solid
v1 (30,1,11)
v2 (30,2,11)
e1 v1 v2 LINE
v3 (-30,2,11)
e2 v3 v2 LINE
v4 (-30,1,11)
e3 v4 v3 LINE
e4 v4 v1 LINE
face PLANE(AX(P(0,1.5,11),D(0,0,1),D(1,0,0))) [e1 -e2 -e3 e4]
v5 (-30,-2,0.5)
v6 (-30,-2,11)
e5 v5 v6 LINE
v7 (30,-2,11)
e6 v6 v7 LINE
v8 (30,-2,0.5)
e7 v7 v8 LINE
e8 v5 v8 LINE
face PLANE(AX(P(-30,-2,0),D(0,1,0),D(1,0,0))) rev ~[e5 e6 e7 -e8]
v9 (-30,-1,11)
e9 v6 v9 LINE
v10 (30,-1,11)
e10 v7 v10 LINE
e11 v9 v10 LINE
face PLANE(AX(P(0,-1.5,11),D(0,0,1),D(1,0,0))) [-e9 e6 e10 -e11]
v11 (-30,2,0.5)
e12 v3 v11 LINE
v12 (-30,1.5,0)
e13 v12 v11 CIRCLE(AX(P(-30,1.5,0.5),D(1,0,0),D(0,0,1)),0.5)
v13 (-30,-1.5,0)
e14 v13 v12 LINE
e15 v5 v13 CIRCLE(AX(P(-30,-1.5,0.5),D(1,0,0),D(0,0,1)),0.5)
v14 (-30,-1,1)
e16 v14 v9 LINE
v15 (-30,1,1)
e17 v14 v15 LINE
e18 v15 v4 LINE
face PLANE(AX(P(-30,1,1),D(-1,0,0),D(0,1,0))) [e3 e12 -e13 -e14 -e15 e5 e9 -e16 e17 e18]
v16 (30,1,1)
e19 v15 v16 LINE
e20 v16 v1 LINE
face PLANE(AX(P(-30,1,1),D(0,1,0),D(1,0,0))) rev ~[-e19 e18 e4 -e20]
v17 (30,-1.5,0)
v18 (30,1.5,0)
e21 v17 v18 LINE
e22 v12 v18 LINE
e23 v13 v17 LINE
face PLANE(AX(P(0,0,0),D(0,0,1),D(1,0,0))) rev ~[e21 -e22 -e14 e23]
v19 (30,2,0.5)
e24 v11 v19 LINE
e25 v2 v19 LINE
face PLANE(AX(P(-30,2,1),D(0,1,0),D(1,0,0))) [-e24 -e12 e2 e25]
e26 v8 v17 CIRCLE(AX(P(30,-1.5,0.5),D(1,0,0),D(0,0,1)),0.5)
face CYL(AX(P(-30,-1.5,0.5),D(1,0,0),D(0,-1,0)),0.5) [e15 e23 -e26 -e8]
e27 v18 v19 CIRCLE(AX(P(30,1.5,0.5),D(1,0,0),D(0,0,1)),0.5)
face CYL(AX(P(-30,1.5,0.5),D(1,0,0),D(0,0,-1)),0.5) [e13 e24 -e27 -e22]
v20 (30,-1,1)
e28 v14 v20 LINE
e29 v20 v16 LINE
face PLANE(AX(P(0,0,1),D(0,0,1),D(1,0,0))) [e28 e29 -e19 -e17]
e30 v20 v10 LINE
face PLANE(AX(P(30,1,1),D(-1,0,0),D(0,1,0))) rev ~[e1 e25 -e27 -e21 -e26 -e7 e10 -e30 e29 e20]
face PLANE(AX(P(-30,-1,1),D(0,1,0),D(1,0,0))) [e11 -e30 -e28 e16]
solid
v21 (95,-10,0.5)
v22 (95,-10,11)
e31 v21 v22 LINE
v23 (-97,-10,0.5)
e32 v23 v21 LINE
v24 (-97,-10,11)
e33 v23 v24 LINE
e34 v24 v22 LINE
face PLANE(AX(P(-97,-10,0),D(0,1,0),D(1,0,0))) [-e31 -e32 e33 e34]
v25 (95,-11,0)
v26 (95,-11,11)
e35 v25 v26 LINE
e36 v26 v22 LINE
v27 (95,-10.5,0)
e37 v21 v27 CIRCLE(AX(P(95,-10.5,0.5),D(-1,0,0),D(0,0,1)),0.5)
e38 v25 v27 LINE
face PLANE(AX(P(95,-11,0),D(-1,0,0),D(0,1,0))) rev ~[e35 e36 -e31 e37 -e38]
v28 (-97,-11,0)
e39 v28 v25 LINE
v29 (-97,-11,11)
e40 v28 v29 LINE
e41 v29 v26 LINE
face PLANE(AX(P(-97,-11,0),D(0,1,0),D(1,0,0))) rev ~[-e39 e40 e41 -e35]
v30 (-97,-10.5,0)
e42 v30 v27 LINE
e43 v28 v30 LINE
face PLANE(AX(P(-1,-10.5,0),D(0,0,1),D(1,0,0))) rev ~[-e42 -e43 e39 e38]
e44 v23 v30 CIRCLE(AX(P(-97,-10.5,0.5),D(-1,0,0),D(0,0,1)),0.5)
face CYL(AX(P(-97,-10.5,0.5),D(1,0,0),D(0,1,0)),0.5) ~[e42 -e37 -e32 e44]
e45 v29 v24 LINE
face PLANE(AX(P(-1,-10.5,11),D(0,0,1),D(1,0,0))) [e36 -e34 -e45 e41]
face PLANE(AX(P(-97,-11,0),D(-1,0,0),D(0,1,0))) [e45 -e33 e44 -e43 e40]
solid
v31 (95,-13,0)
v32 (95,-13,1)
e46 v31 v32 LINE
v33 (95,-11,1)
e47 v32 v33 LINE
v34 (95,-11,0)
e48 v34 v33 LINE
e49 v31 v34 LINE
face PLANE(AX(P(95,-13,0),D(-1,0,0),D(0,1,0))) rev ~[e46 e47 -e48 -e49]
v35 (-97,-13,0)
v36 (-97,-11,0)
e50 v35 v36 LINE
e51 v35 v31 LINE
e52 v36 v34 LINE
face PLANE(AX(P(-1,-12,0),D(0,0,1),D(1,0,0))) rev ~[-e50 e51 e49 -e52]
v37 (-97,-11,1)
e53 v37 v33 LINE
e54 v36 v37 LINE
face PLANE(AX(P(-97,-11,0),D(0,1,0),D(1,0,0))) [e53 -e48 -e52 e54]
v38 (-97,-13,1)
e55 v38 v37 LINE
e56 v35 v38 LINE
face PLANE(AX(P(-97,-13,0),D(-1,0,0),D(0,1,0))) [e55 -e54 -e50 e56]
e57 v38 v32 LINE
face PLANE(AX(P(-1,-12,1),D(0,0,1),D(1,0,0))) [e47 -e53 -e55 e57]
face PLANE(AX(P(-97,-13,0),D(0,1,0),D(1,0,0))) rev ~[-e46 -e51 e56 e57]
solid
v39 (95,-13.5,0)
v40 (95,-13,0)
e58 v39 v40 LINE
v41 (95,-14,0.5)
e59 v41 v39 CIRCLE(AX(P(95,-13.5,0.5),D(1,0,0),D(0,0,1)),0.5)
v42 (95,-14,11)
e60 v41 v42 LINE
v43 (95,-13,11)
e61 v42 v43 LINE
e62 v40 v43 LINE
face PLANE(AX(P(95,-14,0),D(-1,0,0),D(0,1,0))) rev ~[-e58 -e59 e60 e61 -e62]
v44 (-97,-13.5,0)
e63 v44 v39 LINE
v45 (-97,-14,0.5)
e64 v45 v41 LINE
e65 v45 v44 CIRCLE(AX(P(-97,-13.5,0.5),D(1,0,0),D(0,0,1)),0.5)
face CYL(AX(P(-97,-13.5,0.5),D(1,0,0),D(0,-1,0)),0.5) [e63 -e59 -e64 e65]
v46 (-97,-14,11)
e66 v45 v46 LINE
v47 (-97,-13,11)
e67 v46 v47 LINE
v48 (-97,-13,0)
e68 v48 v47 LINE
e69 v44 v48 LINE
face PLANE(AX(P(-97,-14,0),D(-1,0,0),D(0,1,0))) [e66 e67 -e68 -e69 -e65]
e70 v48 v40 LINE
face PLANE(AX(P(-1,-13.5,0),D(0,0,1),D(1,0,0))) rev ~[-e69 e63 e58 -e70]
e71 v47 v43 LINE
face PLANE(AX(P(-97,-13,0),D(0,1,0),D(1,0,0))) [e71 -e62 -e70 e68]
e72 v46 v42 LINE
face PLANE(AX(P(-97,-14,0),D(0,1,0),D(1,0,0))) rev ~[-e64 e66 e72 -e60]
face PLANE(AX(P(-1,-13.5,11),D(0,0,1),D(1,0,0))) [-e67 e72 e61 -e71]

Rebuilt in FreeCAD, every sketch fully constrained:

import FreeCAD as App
import Part
import Sketcher
from FreeCAD import Vector
Q = App.Units.Quantity


def edges_at(feature, points):
    """Names of the edges that pass closest to the given points."""
    edges = feature.Shape.Edges
    near = lambda p: min(range(len(edges)), key=lambda i: edges[i].distToShape(Part.Vertex(*p))[0])
    return sorted({f"Edge{near(p) + 1}" for p in points})

doc = App.newDocument("Part")
body = doc.addObject("PartDesign::Body", "Body")

# Sketch on XY plane
sketch1 = body.newObject("Sketcher::SketchObject", "Sketch")
sketch1.AttachmentSupport = (doc.getObject("XY_Plane"), [""])
sketch1.MapMode = "FlatFace"
sketch1.addGeometry([
    Part.LineSegment(Vector(-30, 2, 0), Vector(-30, -2, 0)),
    Part.LineSegment(Vector(-30, -2, 0), Vector(30, -2, 0)),
    Part.LineSegment(Vector(30, -2, 0), Vector(30, 2, 0)),
    Part.LineSegment(Vector(30, 2, 0), Vector(-30, 2, 0)),
], False)
sketch1.addConstraint([
    Sketcher.Constraint("Coincident", 0, 2, 1, 1),
    Sketcher.Constraint("Coincident", 1, 2, 2, 1),
    Sketcher.Constraint("Coincident", 2, 2, 3, 1),
    Sketcher.Constraint("Coincident", 3, 2, 0, 1),
    Sketcher.Constraint("Vertical", 0),
    Sketcher.Constraint("Horizontal", 1),
    Sketcher.Constraint("Vertical", 2),
    Sketcher.Constraint("Horizontal", 3),
    Sketcher.Constraint("Symmetric", 0, 2, 2, 2, -1, 1),
    Sketcher.Constraint("DistanceX", 1, 1, 1, 2, Q("60 mm")),
    Sketcher.Constraint("DistanceY", 0, 2, 0, 1, Q("4 mm")),
])
pad1 = body.newObject("PartDesign::Pad", "Pad")
pad1.Profile = sketch1
pad1.Length = 1

# Sketch on XY plane
sketch2 = body.newObject("Sketcher::SketchObject", "Sketch001")
sketch2.AttachmentSupport = (doc.getObject("XY_Plane"), [""])
sketch2.MapMode = "FlatFace"
sketch2.AttachmentOffset = App.Placement(Vector(0, 0, 1), App.Rotation())
sketch2.addGeometry([
    Part.LineSegment(Vector(-30, 2, 0), Vector(-30, 1, 0)),  # 0
    Part.LineSegment(Vector(-30, 1, 0), Vector(30, 1, 0)),  # 1
    Part.LineSegment(Vector(30, 1, 0), Vector(30, 2, 0)),  # 2
    Part.LineSegment(Vector(30, 2, 0), Vector(-30, 2, 0)),  # 3
    Part.LineSegment(Vector(-30, -1, 0), Vector(-30, -2, 0)),  # 4
    Part.LineSegment(Vector(-30, -2, 0), Vector(30, -2, 0)),  # 5
    Part.LineSegment(Vector(30, -2, 0), Vector(30, -1, 0)),  # 6
    Part.LineSegment(Vector(30, -1, 0), Vector(-30, -1, 0)),  # 7
], False)
sketch2.addConstraint([
    Sketcher.Constraint("Coincident", 0, 2, 1, 1),
    Sketcher.Constraint("Coincident", 1, 2, 2, 1),
    Sketcher.Constraint("Coincident", 2, 2, 3, 1),
    Sketcher.Constraint("Coincident", 3, 2, 0, 1),
    Sketcher.Constraint("Coincident", 4, 2, 5, 1),
    Sketcher.Constraint("Coincident", 5, 2, 6, 1),
    Sketcher.Constraint("Coincident", 6, 2, 7, 1),
    Sketcher.Constraint("Coincident", 7, 2, 4, 1),
    Sketcher.Constraint("Vertical", 0),
    Sketcher.Constraint("Horizontal", 1),
    Sketcher.Constraint("Vertical", 2),
    Sketcher.Constraint("Horizontal", 3),
    Sketcher.Constraint("Vertical", 4),
    Sketcher.Constraint("Horizontal", 5),
    Sketcher.Constraint("Vertical", 6),
    Sketcher.Constraint("Horizontal", 7),
    Sketcher.Constraint("Symmetric", 2, 2, 4, 2, -1, 1),
    Sketcher.Constraint("Symmetric", 0, 2, 6, 2, -1, 1),
    Sketcher.Constraint("Vertical", 3, 2, 4, 2),
    Sketcher.Constraint("DistanceX", 1, 1, 1, 2, Q("60 mm")),
    Sketcher.Constraint("DistanceY", 0, 2, 0, 1, Q("1 mm")),
    Sketcher.Constraint("DistanceY", -1, 1, 0, 2, Q("1 mm")),
])
pad2 = body.newObject("PartDesign::Pad", "Pad001")
pad2.Profile = sketch2
pad2.Length = 10
doc.recompute()

fillet = body.newObject("PartDesign::Fillet", "Fillet")
fillet.Base = (pad2, edges_at(pad2, [(0, -2, 0), (0, 2, 0)]))
fillet.Radius = 0.5
body2 = doc.addObject("PartDesign::Body", "Body001")
body2.AllowCompound = True

# Sketch on XY plane
sketch3 = body2.newObject("Sketcher::SketchObject", "Sketch002")
sketch3.AttachmentSupport = (doc.getObject("XY_Plane001"), [""])
sketch3.MapMode = "FlatFace"
sketch3.addGeometry([
    Part.LineSegment(Vector(-97, -10, 0), Vector(-97, -11, 0)),  # 0
    Part.LineSegment(Vector(-97, -11, 0), Vector(95, -11, 0)),  # 1
    Part.LineSegment(Vector(95, -11, 0), Vector(95, -10, 0)),  # 2
    Part.LineSegment(Vector(95, -10, 0), Vector(-97, -10, 0)),  # 3
    Part.LineSegment(Vector(-97, -13, 0), Vector(-97, -14, 0)),  # 4
    Part.LineSegment(Vector(-97, -14, 0), Vector(95, -14, 0)),  # 5
    Part.LineSegment(Vector(95, -14, 0), Vector(95, -13, 0)),  # 6
    Part.LineSegment(Vector(95, -13, 0), Vector(-97, -13, 0)),  # 7
], False)
sketch3.addConstraint([
    Sketcher.Constraint("Coincident", 0, 2, 1, 1),
    Sketcher.Constraint("Coincident", 1, 2, 2, 1),
    Sketcher.Constraint("Coincident", 2, 2, 3, 1),
    Sketcher.Constraint("Coincident", 3, 2, 0, 1),
    Sketcher.Constraint("Coincident", 4, 2, 5, 1),
    Sketcher.Constraint("Coincident", 5, 2, 6, 1),
    Sketcher.Constraint("Coincident", 6, 2, 7, 1),
    Sketcher.Constraint("Coincident", 7, 2, 4, 1),
    Sketcher.Constraint("Vertical", 0),
    Sketcher.Constraint("Horizontal", 1),
    Sketcher.Constraint("Vertical", 2),
    Sketcher.Constraint("Horizontal", 3),
    Sketcher.Constraint("Vertical", 4),
    Sketcher.Constraint("Horizontal", 5),
    Sketcher.Constraint("Vertical", 6),
    Sketcher.Constraint("Horizontal", 7),
    Sketcher.Constraint("Vertical", 3, 2, 4, 2),
    Sketcher.Constraint("Vertical", 2, 2, 5, 2),
    Sketcher.Constraint("Equal", 2, 4),
    Sketcher.Constraint("DistanceX", 1, 1, 1, 2, Q("192 mm")),
    Sketcher.Constraint("DistanceY", 0, 2, 0, 1, Q("1 mm")),
    Sketcher.Constraint("DistanceX", 0, 2, -1, 1, Q("97 mm")),
    Sketcher.Constraint("DistanceY", 0, 2, -1, 1, Q("11 mm")),
    Sketcher.Constraint("DistanceY", 4, 2, -1, 1, Q("14 mm")),
])
pad3 = body2.newObject("PartDesign::Pad", "Pad002")
pad3.Profile = sketch3
pad3.Length = 11
doc.recompute()

fillet2 = body2.newObject("PartDesign::Fillet", "Fillet001")
fillet2.Base = (pad3, edges_at(pad3, [(-1, -14, 0), (-1, -10, 0)]))
fillet2.Radius = 0.5
body3 = doc.addObject("PartDesign::Body", "Body002")

# Sketch on XY plane
sketch4 = body3.newObject("Sketcher::SketchObject", "Sketch003")
sketch4.AttachmentSupport = (doc.getObject("XY_Plane002"), [""])
sketch4.MapMode = "FlatFace"
sketch4.addGeometry([
    Part.LineSegment(Vector(-97, -11, 0), Vector(-97, -13, 0)),
    Part.LineSegment(Vector(-97, -13, 0), Vector(95, -13, 0)),
    Part.LineSegment(Vector(95, -13, 0), Vector(95, -11, 0)),
    Part.LineSegment(Vector(95, -11, 0), Vector(-97, -11, 0)),
], False)
sketch4.addConstraint([
    Sketcher.Constraint("Coincident", 0, 2, 1, 1),
    Sketcher.Constraint("Coincident", 1, 2, 2, 1),
    Sketcher.Constraint("Coincident", 2, 2, 3, 1),
    Sketcher.Constraint("Coincident", 3, 2, 0, 1),
    Sketcher.Constraint("Vertical", 0),
    Sketcher.Constraint("Horizontal", 1),
    Sketcher.Constraint("Vertical", 2),
    Sketcher.Constraint("Horizontal", 3),
    Sketcher.Constraint("DistanceX", 1, 1, 1, 2, Q("192 mm")),
    Sketcher.Constraint("DistanceY", 0, 2, 0, 1, Q("2 mm")),
    Sketcher.Constraint("DistanceX", 0, 2, -1, 1, Q("97 mm")),
    Sketcher.Constraint("DistanceY", 0, 2, -1, 1, Q("13 mm")),
])
pad4 = body3.newObject("PartDesign::Pad", "Pad003")
pad4.Profile = sketch4
pad4.Length = 1

doc.recompute()
